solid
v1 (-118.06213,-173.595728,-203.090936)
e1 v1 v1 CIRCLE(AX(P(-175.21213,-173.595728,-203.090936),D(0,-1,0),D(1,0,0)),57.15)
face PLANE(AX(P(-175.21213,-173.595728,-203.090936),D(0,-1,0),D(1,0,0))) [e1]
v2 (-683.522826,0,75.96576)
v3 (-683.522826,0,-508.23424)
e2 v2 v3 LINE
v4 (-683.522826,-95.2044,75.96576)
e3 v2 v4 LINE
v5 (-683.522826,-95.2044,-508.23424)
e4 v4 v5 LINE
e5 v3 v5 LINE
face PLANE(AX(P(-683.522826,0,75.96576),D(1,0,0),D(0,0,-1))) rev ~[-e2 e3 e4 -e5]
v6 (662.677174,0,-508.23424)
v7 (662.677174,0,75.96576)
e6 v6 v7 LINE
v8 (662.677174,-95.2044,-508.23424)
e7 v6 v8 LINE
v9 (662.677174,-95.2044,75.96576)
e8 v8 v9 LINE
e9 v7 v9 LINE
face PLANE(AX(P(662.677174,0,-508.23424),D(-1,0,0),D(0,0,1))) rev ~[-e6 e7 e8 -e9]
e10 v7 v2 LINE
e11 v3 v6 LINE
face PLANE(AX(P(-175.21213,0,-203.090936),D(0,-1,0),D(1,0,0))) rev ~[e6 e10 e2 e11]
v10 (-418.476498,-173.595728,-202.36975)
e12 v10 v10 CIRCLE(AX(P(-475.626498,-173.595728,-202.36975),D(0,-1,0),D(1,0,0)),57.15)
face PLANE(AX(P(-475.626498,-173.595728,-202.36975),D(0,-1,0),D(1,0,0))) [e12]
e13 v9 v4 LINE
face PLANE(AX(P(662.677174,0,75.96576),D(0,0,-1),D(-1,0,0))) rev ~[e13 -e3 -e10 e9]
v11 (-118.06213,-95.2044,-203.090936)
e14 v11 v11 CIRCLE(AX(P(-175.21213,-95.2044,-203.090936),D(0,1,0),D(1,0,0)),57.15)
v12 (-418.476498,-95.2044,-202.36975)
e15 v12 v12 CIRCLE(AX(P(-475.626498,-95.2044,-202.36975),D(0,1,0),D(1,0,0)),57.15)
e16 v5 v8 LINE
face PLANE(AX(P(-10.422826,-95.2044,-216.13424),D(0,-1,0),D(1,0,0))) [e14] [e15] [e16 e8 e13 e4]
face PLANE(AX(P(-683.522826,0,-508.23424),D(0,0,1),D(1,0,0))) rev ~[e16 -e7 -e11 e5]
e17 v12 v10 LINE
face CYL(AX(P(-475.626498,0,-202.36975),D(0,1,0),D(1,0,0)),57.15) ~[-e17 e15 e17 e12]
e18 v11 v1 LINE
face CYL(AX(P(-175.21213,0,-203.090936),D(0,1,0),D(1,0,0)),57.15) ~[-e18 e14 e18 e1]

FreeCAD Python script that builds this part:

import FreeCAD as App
import Part
import Sketcher
Q = App.Units.Quantity


def add_polygon(sketch, points):
    """Adds a closed chain of lines whose ends are joined by coincident constraints."""
    first, n = sketch.GeometryCount, len(points)
    for a, b in zip(points, points[1:] + points[:1]):
        sketch.addGeometry(Part.LineSegment(App.Vector(*a, 0), App.Vector(*b, 0)), False)
    for i in range(n):
        sketch.addConstraint(Sketcher.Constraint("Coincident", first + i, 2, first + (i + 1) % n, 1))

doc = App.newDocument("Part")
body = doc.addObject("PartDesign::Body", "Body")

sketch1 = body.newObject("Sketcher::SketchObject", "Sketch")
sketch1.AttachmentSupport = (doc.getObject("XZ_Plane"), [""])
sketch1.MapMode = "FlatFace"
add_polygon(sketch1, [(663, 76), (-684, 76), (-684, -508), (663, -508)])
sketch1.addConstraint([
    Sketcher.Constraint("Horizontal", 0),
    Sketcher.Constraint("Vertical", 1),
    Sketcher.Constraint("Horizontal", 2),
    Sketcher.Constraint("Vertical", 3),
    Sketcher.Constraint("DistanceX", 0, 2, 0, 1, Q("53 in")),
    Sketcher.Constraint("DistanceY", 1, 2, 1, 1, Q("23 in")),
    Sketcher.Constraint("DistanceY", -1, 1, 0, 2, Q("75.96576 mm")),
    Sketcher.Constraint("DistanceX", 0, 2, -1, 1, Q("683.522826 mm")),
])
pad1 = body.newObject("PartDesign::Pad", "Pad")
pad1.Profile = sketch1
pad1.Length = 95.2044

sketch2 = body.newObject("Sketcher::SketchObject", "Sketch001")
sketch2.AttachmentSupport = (doc.getObject("XZ_Plane"), [""])
sketch2.MapMode = "FlatFace"
sketch2.addGeometry([
    Part.Circle(App.Vector(-175, -203, 0), App.Vector(0, 0, 1), 57),
    Part.Circle(App.Vector(-476, -202, 0), App.Vector(0, 0, 1), 57),
], False)
sketch2.addConstraint([
    Sketcher.Constraint("Equal", 0, 1),
    Sketcher.Constraint("Diameter", 0, Q("4.5 in")),
    Sketcher.Constraint("DistanceX", 1, 3, -1, 1, Q("475.626498 mm")),
    Sketcher.Constraint("DistanceX", 0, 3, -1, 1, Q("175.21213 mm")),
    Sketcher.Constraint("DistanceY", 1, 3, -1, 1, Q("202.36975 mm")),
    Sketcher.Constraint("DistanceY", 0, 3, -1, 1, Q("203.090936 mm")),
])
pad2 = body.newObject("PartDesign::Pad", "Pad001")
pad2.Profile = sketch2
pad2.Length = 173.595728

doc.recompute()
